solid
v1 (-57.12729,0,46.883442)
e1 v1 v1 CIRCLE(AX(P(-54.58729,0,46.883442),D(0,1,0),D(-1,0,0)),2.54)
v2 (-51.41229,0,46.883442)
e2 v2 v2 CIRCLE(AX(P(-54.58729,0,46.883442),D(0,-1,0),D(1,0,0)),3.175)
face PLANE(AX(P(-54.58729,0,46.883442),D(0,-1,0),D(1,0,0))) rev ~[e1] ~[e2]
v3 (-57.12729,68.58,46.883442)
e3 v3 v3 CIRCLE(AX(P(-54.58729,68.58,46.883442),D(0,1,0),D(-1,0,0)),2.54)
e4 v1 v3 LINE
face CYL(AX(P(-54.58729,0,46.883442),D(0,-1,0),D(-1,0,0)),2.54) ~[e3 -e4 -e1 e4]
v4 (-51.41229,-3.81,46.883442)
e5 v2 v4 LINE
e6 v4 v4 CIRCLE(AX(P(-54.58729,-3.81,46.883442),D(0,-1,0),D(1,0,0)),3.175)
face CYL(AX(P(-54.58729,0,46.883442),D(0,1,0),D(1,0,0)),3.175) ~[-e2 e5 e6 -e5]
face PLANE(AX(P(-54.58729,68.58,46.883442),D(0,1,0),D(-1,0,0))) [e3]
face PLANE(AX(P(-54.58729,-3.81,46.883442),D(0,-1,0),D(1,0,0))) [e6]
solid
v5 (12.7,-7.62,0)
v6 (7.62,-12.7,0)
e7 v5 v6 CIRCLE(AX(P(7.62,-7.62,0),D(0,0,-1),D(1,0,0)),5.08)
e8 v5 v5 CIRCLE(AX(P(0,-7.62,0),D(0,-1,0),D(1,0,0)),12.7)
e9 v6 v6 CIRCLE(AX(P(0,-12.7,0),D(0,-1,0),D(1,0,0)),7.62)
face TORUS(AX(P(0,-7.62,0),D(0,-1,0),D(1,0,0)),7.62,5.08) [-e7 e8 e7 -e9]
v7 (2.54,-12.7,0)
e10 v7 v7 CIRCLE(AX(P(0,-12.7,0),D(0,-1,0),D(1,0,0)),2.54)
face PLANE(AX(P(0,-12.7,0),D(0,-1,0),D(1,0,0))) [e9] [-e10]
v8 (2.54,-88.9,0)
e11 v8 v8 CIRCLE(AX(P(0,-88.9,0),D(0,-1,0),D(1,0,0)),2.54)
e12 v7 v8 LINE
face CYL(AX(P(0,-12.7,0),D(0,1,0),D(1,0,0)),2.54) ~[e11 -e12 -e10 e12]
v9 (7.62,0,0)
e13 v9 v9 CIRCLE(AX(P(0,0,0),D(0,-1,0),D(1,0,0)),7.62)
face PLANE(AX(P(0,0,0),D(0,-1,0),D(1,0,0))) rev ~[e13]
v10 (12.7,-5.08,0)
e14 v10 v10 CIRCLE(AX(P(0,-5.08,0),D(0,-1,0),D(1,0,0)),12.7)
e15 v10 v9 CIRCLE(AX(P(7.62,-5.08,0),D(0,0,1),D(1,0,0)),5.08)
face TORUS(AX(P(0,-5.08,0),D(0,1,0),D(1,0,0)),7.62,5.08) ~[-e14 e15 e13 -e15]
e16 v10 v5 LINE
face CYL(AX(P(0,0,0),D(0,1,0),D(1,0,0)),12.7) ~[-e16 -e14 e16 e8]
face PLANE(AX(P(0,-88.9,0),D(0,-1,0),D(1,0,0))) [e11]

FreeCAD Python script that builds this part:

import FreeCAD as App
import Part
import Sketcher
Q = App.Units.Quantity


def edges_at(feature, points):
    """Names of the edges that pass closest to the given points."""
    edges = feature.Shape.Edges
    near = lambda p: min(range(len(edges)), key=lambda i: edges[i].distToShape(Part.Vertex(*p))[0])
    return sorted({f"Edge{near(p) + 1}" for p in points})

doc = App.newDocument("Part")
body = doc.addObject("PartDesign::Body", "Body")

# Sketch on XZ plane
sketch1 = body.newObject("Sketcher::SketchObject", "Sketch")
sketch1.AttachmentSupport = (doc.getObject("XZ_Plane"), [""])
sketch1.MapMode = "FlatFace"
sketch1.addGeometry(Part.Circle(App.Vector(0, 0, 0), App.Vector(0, 0, 1), 13), False)
sketch1.addConstraint(Sketcher.Constraint("Coincident", 0, 3, -1, 1))
sketch1.addConstraint(Sketcher.Constraint("Diameter", 0, Q("1 in")))
pad1 = body.newObject("PartDesign::Pad", "Pad")
pad1.Profile = sketch1
pad1.Length = Q("0.5 in")

# Sketch on XZ plane
sketch2 = body.newObject("Sketcher::SketchObject", "Sketch001")
sketch2.AttachmentSupport = (doc.getObject("XZ_Plane"), [""])
sketch2.MapMode = "FlatFace"
sketch2.AttachmentOffset = App.Placement(App.Vector(0, 0, 0.5 * 25.4), App.Rotation())
sketch2.addGeometry(Part.Circle(App.Vector(0, 0, 0), App.Vector(0, 0, 1), 2.5), False)
sketch2.addConstraint(Sketcher.Constraint("Coincident", 0, 3, -1, 1))
sketch2.addConstraint(Sketcher.Constraint("Diameter", 0, Q("0.2 in")))
pad2 = body.newObject("PartDesign::Pad", "Pad001")
pad2.Profile = sketch2
pad2.Length = Q("3 in")
doc.recompute()

fillet = body.newObject("PartDesign::Fillet", "Fillet")
fillet.Base = (pad2, edges_at(pad2, [(-12.7, -12.7, 0), (-12.7, 0, 0)]))
fillet.Radius = Q("0.2 in")
body2 = doc.addObject("PartDesign::Body", "Body001")

# Sketch on XZ plane
sketch3 = body2.newObject("Sketcher::SketchObject", "Sketch002")
sketch3.AttachmentSupport = (doc.getObject("XZ_Plane001"), [""])
sketch3.MapMode = "FlatFace"
sketch3.addGeometry(Part.Circle(App.Vector(-54.6, 46.9, 0), App.Vector(0, 0, 1), 3.2), False)
sketch3.addConstraint(Sketcher.Constraint("Diameter", 0, Q("0.25 in")))
sketch3.addConstraint(Sketcher.Constraint("DistanceX", 0, 3, -1, 1, 54.58729))
sketch3.addConstraint(Sketcher.Constraint("DistanceY", -1, 1, 0, 3, 46.883442))
pad3 = body2.newObject("PartDesign::Pad", "Pad002")
pad3.Profile = sketch3
pad3.Length = Q("0.15 in")

# Sketch on XZ plane
sketch4 = body2.newObject("Sketcher::SketchObject", "Sketch003")
sketch4.AttachmentSupport = (doc.getObject("XZ_Plane001"), [""])
sketch4.MapMode = "FlatFace"
sketch4.addGeometry(Part.Circle(App.Vector(-54.6, 46.9, 0), App.Vector(0, 0, 1), 2.5), False)
sketch4.addConstraint(Sketcher.Constraint("Diameter", 0, Q("0.2 in")))
sketch4.addConstraint(Sketcher.Constraint("DistanceX", 0, 3, -1, 1, 54.58729))
sketch4.addConstraint(Sketcher.Constraint("DistanceY", -1, 1, 0, 3, 46.883442))
pad4 = body2.newObject("PartDesign::Pad", "Pad003")
pad4.Profile = sketch4
pad4.Length = Q("2.7 in")
pad4.Reversed = True

doc.recompute()
